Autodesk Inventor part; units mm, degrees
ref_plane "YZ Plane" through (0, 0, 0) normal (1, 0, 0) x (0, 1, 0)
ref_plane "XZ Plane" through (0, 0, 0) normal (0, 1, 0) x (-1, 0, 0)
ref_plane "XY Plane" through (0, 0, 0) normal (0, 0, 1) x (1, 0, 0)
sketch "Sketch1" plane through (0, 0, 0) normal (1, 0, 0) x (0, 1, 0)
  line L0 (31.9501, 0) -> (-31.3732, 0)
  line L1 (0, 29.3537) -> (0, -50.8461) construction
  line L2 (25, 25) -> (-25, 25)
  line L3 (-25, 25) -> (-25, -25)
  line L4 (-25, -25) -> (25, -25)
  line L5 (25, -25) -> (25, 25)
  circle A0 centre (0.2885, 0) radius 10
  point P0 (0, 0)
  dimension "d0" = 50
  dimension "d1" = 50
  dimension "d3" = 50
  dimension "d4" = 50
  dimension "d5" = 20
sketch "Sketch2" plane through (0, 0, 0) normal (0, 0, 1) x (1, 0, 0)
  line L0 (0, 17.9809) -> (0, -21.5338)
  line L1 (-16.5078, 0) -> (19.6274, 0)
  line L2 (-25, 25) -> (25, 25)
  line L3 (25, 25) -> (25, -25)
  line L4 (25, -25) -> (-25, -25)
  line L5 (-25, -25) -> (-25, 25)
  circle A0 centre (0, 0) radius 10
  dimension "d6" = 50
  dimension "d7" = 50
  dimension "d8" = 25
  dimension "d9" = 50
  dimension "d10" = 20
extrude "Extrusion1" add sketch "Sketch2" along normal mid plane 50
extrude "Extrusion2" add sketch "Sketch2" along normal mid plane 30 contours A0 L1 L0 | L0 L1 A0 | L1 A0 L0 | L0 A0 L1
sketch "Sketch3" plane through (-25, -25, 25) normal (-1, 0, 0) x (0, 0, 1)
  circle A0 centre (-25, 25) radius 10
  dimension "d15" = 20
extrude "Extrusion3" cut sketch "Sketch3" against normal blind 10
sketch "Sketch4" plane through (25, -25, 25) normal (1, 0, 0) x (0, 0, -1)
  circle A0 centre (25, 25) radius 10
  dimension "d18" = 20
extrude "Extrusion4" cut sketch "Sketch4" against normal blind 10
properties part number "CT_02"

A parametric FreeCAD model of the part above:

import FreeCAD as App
import Part
import Sketcher

V = App.Vector


def add_polygon(sketch, points):
    """Adds a closed chain of lines whose ends are joined by coincident constraints."""
    first, n = sketch.GeometryCount, len(points)
    for a, b in zip(points, points[1:] + points[:1]):
        sketch.addGeometry(Part.LineSegment(App.Vector(*a, 0), App.Vector(*b, 0)), False)
    for i in range(n):
        sketch.addConstraint(Sketcher.Constraint("Coincident", first + i, 2, first + (i + 1) % n, 1))

doc = App.newDocument("Part")
body = doc.addObject("PartDesign::Body", "Body")

sketch1 = body.newObject("Sketcher::SketchObject", "Sketch")
sketch1.AttachmentSupport = (doc.getObject("XY_Plane"), [""])
sketch1.MapMode = "FlatFace"
add_polygon(sketch1, [(25, 25), (-25, 25), (-25, -25), (25, -25)])
sketch1.addGeometry(Part.Circle(V(0, 0, 0), V(0, 0, 1), 10), False)
sketch1.addConstraint([
    Sketcher.Constraint("Horizontal", 0),
    Sketcher.Constraint("Vertical", 1),
    Sketcher.Constraint("Horizontal", 2),
    Sketcher.Constraint("Vertical", 3),
    Sketcher.Constraint("Coincident", 4, 3, -1, 1),
    Sketcher.Constraint("Symmetric", 0, 2, 2, 2, -1, 1),
    Sketcher.Constraint("Equal", 2, 1),
    Sketcher.Constraint("Diameter", 4, 20.0),
    Sketcher.Constraint("DistanceX", 0, 2, 0, 1, 50.0),
])
pad1 = body.newObject("PartDesign::Pad", "Pad")
pad1.Profile = sketch1
pad1.Length = 50
pad1.Midplane = True

sketch2 = body.newObject("Sketcher::SketchObject", "Sketch001")
sketch2.AttachmentSupport = (doc.getObject("XY_Plane"), [""])
sketch2.MapMode = "FlatFace"
sketch2.addGeometry(Part.Circle(V(0, 0, 0), V(0, 0, 1), 10), False)
sketch2.addConstraint([
    Sketcher.Constraint("Coincident", 0, 3, -1, 1),
    Sketcher.Constraint("Diameter", 0, 20.0),
])
pad2 = body.newObject("PartDesign::Pad", "Pad001")
pad2.Profile = sketch2
pad2.Length = 30
pad2.Midplane = True

sketch3 = body.newObject("Sketcher::SketchObject", "Sketch002")
sketch3.AttachmentSupport = (doc.getObject("YZ_Plane"), [""])
sketch3.MapMode = "FlatFace"
sketch3.AttachmentOffset = App.Placement(V(0, 0, -25), App.Rotation())
sketch3.addGeometry(Part.Circle(V(0, 0, 0), V(0, 0, 1), 10), False)
sketch3.addConstraint([
    Sketcher.Constraint("Coincident", 0, 3, -1, 1),
    Sketcher.Constraint("Diameter", 0, 20.0),
])
pocket1 = body.newObject("PartDesign::Pocket", "Pocket")
pocket1.Profile = sketch3
pocket1.Length = 10
pocket1.Reversed = True

sketch4 = body.newObject("Sketcher::SketchObject", "Sketch003")
sketch4.AttachmentSupport = (doc.getObject("YZ_Plane"), [""])
sketch4.MapMode = "FlatFace"
sketch4.AttachmentOffset = App.Placement(V(0, 0, 25), App.Rotation())
sketch4.addGeometry(Part.Circle(V(0, 0, 0), V(0, 0, 1), 10), False)
sketch4.addConstraint([
    Sketcher.Constraint("Coincident", 0, 3, -1, 1),
    Sketcher.Constraint("Diameter", 0, 20.0),
])
pocket2 = body.newObject("PartDesign::Pocket", "Pocket001")
pocket2.Profile = sketch4
pocket2.Length = 10

doc.recompute()
